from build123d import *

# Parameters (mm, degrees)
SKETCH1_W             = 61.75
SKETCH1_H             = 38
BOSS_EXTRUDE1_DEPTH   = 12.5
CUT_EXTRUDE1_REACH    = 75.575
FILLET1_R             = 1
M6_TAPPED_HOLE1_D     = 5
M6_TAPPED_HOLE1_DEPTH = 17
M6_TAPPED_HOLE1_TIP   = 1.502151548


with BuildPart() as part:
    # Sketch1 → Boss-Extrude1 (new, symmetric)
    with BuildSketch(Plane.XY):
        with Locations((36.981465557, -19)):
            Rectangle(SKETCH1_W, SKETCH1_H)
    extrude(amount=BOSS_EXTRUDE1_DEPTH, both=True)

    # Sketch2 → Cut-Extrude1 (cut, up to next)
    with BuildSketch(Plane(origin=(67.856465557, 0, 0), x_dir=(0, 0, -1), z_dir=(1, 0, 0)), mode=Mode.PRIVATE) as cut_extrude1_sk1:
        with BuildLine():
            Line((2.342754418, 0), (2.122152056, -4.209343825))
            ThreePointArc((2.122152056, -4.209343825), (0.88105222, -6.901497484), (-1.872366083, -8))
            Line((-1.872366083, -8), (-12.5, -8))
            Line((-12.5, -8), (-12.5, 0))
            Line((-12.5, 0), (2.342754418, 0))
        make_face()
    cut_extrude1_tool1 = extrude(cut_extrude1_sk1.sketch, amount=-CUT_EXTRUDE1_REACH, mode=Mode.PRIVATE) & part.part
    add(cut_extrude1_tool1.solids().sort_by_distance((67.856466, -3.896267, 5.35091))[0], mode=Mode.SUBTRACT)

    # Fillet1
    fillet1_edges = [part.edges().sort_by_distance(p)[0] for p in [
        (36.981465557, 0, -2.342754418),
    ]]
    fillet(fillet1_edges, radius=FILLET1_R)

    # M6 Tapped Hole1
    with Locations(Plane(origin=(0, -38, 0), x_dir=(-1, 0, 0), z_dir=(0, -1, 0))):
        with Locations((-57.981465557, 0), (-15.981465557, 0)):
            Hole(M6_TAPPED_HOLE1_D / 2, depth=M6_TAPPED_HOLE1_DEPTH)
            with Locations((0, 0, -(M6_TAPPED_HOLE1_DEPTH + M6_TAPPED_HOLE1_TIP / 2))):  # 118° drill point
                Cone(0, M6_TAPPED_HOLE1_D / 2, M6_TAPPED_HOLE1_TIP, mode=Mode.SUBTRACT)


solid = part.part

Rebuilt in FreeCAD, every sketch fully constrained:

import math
import FreeCAD as App
import Part
import Sketcher

V = App.Vector
Q = App.Units.Quantity


def edges_at(feature, points):
    """Names of the edges that pass closest to the given points."""
    edges = feature.Shape.Edges
    near = lambda p: min(range(len(edges)), key=lambda i: edges[i].distToShape(Part.Vertex(*p))[0])
    return sorted({f"Edge{near(p) + 1}" for p in points})

doc = App.newDocument("Part")
body = doc.addObject("PartDesign::Body", "Body")

sketch1 = body.newObject("Sketcher::SketchObject", "Sketch")
sketch1.AttachmentSupport = (doc.getObject("XY_Plane"), [""])
sketch1.MapMode = "FlatFace"
sketch1.addGeometry(Part.LineSegment(V(6.106466, 0, 0), V(6.106466, -38, 0)), False)
sketch1.addGeometry(Part.LineSegment(V(6.106466, -38, 0), V(67.856466, -38, 0)), False)
sketch1.addGeometry(Part.LineSegment(V(67.856466, -38, 0), V(67.856466, 0, 0)), False)
sketch1.addGeometry(Part.LineSegment(V(67.856466, 0, 0), V(6.106466, 0, 0)), False)
sketch1.addConstraint(Sketcher.Constraint("Coincident", 0, 2, 1, 1))
sketch1.addConstraint(Sketcher.Constraint("Coincident", 1, 2, 2, 1))
sketch1.addConstraint(Sketcher.Constraint("Coincident", 2, 2, 3, 1))
sketch1.addConstraint(Sketcher.Constraint("Coincident", 3, 2, 0, 1))
sketch1.addConstraint(Sketcher.Constraint("Vertical", 0))
sketch1.addConstraint(Sketcher.Constraint("Horizontal", 1))
sketch1.addConstraint(Sketcher.Constraint("Vertical", 2))
sketch1.addConstraint(Sketcher.Constraint("Horizontal", 3))
sketch1.addConstraint(Sketcher.Constraint("PointOnObject", 2, 2, -1))
sketch1.addConstraint(Sketcher.Constraint("DistanceY", 0, 2, 0, 1, 38.0))
sketch1.addConstraint(Sketcher.Constraint("DistanceX", 1, 1, 1, 2, 61.75))
sketch1.addConstraint(Sketcher.Constraint("DistanceX", -1, 1, 0, 2, 6.106466))
pad1 = body.newObject("PartDesign::Pad", "Pad")
pad1.Profile = sketch1
pad1.Length = 25
pad1.Midplane = True

sketch2 = body.newObject("Sketcher::SketchObject", "Sketch001")
sketch2.AttachmentSupport = (doc.getObject("YZ_Plane"), [""])
sketch2.MapMode = "FlatFace"
sketch2.AttachmentOffset = App.Placement(V(0, 0, 67.856466), App.Rotation())
sketch2.addGeometry(Part.LineSegment(V(-4.209344, -2.122152, 0), V(0, -2.342754, 0)), False)
sketch2.addGeometry(Part.LineSegment(V(0, -2.342754, 0), V(0, 12.5, 0)), False)
sketch2.addGeometry(Part.LineSegment(V(0, 12.5, 0), V(-8, 12.5, 0)), False)
sketch2.addGeometry(Part.LineSegment(V(-8, 12.5, 0), V(-8, 1.872366, 0)), False)
sketch2.addGeometry(Part.ArcOfCircle(Part.Circle(V(-4, 1.872366, 0), V(0, 0, 1), 4), math.radians(180), math.radians(267)), False)
sketch2.addConstraint(Sketcher.Constraint("Coincident", 0, 2, 1, 1))
sketch2.addConstraint(Sketcher.Constraint("Coincident", 1, 2, 2, 1))
sketch2.addConstraint(Sketcher.Constraint("Coincident", 2, 2, 3, 1))
sketch2.addConstraint(Sketcher.Constraint("Tangent", 3, 2, 4, 1))
sketch2.addConstraint(Sketcher.Constraint("Tangent", 4, 2, 0, 1))
sketch2.addConstraint(Sketcher.Constraint("Vertical", 1))
sketch2.addConstraint(Sketcher.Constraint("Horizontal", 2))
sketch2.addConstraint(Sketcher.Constraint("Vertical", 3))
sketch2.addConstraint(Sketcher.Constraint("PointOnObject", 0, 2, -2))
sketch2.addConstraint(Sketcher.Constraint("Radius", 4, 4.0))
sketch2.addConstraint(Sketcher.Constraint("DistanceX", 2, 2, 2, 1, 8.0))
sketch2.addConstraint(Sketcher.Constraint("Angle", 0, Q("-3 deg")))
sketch2.addConstraint(Sketcher.Constraint("DistanceY", -1, 1, 1, 2, 12.5))
sketch2.addConstraint(Sketcher.Constraint("DistanceY", 1, 1, 1, 2, 14.842754))
pocket1 = body.newObject("PartDesign::Pocket", "Pocket")
pocket1.Profile = sketch2
pocket1.Type = "UpToFirst"
doc.recompute()

fillet = body.newObject("PartDesign::Fillet", "Fillet")
fillet.Base = (pocket1, edges_at(pocket1, [(36.981, 0, -2.343)]))
fillet.Radius = 1

sketch3 = body.newObject("Sketcher::SketchObject", "Sketch002")
sketch3.AttachmentSupport = (doc.getObject("XZ_Plane"), [""])
sketch3.MapMode = "FlatFace"
sketch3.AttachmentOffset = App.Placement(V(0, 0, 38), App.Rotation())
sketch3.addGeometry(Part.Circle(V(57.981466, 0, 0), V(0, 0, 1), 2.5), False)
sketch3.addGeometry(Part.Circle(V(15.981466, 0, 0), V(0, 0, 1), 2.5), False)
sketch3.addConstraint(Sketcher.Constraint("Equal", 0, 1))
sketch3.addConstraint(Sketcher.Constraint("PointOnObject", 0, 3, -1))
sketch3.addConstraint(Sketcher.Constraint("PointOnObject", 1, 3, -1))
sketch3.addConstraint(Sketcher.Constraint("Diameter", 0, 5.0))
sketch3.addConstraint(Sketcher.Constraint("DistanceX", 1, 3, 0, 3, 42.0))
sketch3.addConstraint(Sketcher.Constraint("DistanceX", -1, 1, 0, 3, 57.981466))
doc.recompute()
hole = body.newObject("PartDesign::Hole", "Hole")
hole.Profile = sketch3
hole.ThreadType = "None"
hole.Diameter = 5
hole.DepthType = "Dimension"
hole.Depth = 17
hole.DrillPoint = "Angled"
hole.DrillPointAngle = 118

doc.recompute()
